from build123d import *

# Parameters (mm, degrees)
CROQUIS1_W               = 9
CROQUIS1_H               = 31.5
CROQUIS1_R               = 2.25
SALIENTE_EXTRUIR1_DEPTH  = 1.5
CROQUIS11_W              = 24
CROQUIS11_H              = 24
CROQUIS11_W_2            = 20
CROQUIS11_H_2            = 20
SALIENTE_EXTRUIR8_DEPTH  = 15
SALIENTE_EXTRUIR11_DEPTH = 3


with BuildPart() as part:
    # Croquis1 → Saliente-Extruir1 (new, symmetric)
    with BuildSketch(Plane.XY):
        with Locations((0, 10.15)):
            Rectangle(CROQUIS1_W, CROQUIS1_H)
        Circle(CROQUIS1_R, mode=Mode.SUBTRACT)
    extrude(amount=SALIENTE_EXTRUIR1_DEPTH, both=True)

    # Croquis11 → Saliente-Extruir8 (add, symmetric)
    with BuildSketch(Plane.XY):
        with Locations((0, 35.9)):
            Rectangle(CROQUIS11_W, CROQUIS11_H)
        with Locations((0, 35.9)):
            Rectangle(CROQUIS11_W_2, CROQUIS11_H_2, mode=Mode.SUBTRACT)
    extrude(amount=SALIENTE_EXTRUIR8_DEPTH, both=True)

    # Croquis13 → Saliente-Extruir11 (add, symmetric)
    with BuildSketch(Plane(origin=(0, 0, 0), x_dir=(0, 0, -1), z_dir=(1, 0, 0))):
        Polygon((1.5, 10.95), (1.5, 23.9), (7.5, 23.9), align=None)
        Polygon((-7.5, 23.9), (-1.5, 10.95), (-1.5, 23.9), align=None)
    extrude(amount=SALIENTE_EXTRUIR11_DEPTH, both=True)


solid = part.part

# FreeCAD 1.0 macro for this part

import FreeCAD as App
import Part
import Sketcher
from FreeCAD import Vector
Q = App.Units.Quantity

doc = App.newDocument("Part")
body = doc.addObject("PartDesign::Body", "Body")

sketch1 = doc.addObject("Sketcher::SketchObject", "Sketch")
body.addObject(sketch1)
sketch1.AttachmentSupport = (doc.XY_Plane, [""])
sketch1.MapMode = "FlatFace"
sketch1.addGeometry(Part.LineSegment(Vector(-4.5, 25.9, 0), Vector(-4.5, -5.6, 0)), False)
sketch1.addGeometry(Part.LineSegment(Vector(-4.5, -5.6, 0), Vector(4.5, -5.6, 0)), False)
sketch1.addGeometry(Part.LineSegment(Vector(4.5, -5.6, 0), Vector(4.5, 25.9, 0)), False)
sketch1.addGeometry(Part.LineSegment(Vector(4.5, 25.9, 0), Vector(-4.5, 25.9, 0)), False)
sketch1.addGeometry(Part.Circle(Vector(0, 0, 0), Vector(0, 0, 1), 2.25), False)
sketch1.addConstraint(Sketcher.Constraint("Coincident", 0, 2, 1, 1))
sketch1.addConstraint(Sketcher.Constraint("Coincident", 1, 2, 2, 1))
sketch1.addConstraint(Sketcher.Constraint("Coincident", 2, 2, 3, 1))
sketch1.addConstraint(Sketcher.Constraint("Coincident", 3, 2, 0, 1))
sketch1.addConstraint(Sketcher.Constraint("Vertical", 0))
sketch1.addConstraint(Sketcher.Constraint("Horizontal", 1))
sketch1.addConstraint(Sketcher.Constraint("Vertical", 2))
sketch1.addConstraint(Sketcher.Constraint("Horizontal", 3))
sketch1.addConstraint(Sketcher.Constraint("Coincident", 4, 3, -1, 1))
sketch1.addConstraint(Sketcher.Constraint("Diameter", 4, Q("4.5 mm")))
sketch1.addConstraint(Sketcher.Constraint("DistanceX", 1, 1, 1, 2, Q("9 mm")))
sketch1.addConstraint(Sketcher.Constraint("DistanceY", 0, 2, 0, 1, Q("31.5 mm")))
sketch1.addConstraint(Sketcher.Constraint("DistanceX", 0, 2, -1, 1, Q("4.5 mm")))
sketch1.addConstraint(Sketcher.Constraint("DistanceY", 0, 2, -1, 1, Q("5.6 mm")))
pad1 = doc.addObject("PartDesign::Pad", "Pad")
body.addObject(pad1)
pad1.Profile = sketch1
pad1.Length = 3
pad1.Midplane = True

sketch2 = doc.addObject("Sketcher::SketchObject", "Sketch001")
body.addObject(sketch2)
sketch2.AttachmentSupport = (doc.XY_Plane, [""])
sketch2.MapMode = "FlatFace"
sketch2.addGeometry(Part.LineSegment(Vector(-12, 47.9, 0), Vector(-12, 23.9, 0)), False)
sketch2.addGeometry(Part.LineSegment(Vector(-12, 23.9, 0), Vector(12, 23.9, 0)), False)
sketch2.addGeometry(Part.LineSegment(Vector(12, 23.9, 0), Vector(12, 47.9, 0)), False)
sketch2.addGeometry(Part.LineSegment(Vector(12, 47.9, 0), Vector(-12, 47.9, 0)), False)
sketch2.addGeometry(Part.LineSegment(Vector(10, 25.9, 0), Vector(-10, 25.9, 0)), False)
sketch2.addGeometry(Part.LineSegment(Vector(-10, 25.9, 0), Vector(-10, 45.9, 0)), False)
sketch2.addGeometry(Part.LineSegment(Vector(-10, 45.9, 0), Vector(10, 45.9, 0)), False)
sketch2.addGeometry(Part.LineSegment(Vector(10, 45.9, 0), Vector(10, 25.9, 0)), False)
sketch2.addConstraint(Sketcher.Constraint("Coincident", 0, 2, 1, 1))
sketch2.addConstraint(Sketcher.Constraint("Coincident", 1, 2, 2, 1))
sketch2.addConstraint(Sketcher.Constraint("Coincident", 2, 2, 3, 1))
sketch2.addConstraint(Sketcher.Constraint("Coincident", 3, 2, 0, 1))
sketch2.addConstraint(Sketcher.Constraint("Coincident", 4, 2, 5, 1))
sketch2.addConstraint(Sketcher.Constraint("Coincident", 5, 2, 6, 1))
sketch2.addConstraint(Sketcher.Constraint("Coincident", 6, 2, 7, 1))
sketch2.addConstraint(Sketcher.Constraint("Coincident", 7, 2, 4, 1))
sketch2.addConstraint(Sketcher.Constraint("Vertical", 0))
sketch2.addConstraint(Sketcher.Constraint("Horizontal", 1))
sketch2.addConstraint(Sketcher.Constraint("Vertical", 2))
sketch2.addConstraint(Sketcher.Constraint("Horizontal", 3))
sketch2.addConstraint(Sketcher.Constraint("Horizontal", 4))
sketch2.addConstraint(Sketcher.Constraint("Vertical", 5))
sketch2.addConstraint(Sketcher.Constraint("Horizontal", 6))
sketch2.addConstraint(Sketcher.Constraint("Vertical", 7))
sketch2.addConstraint(Sketcher.Constraint("Equal", 3, 0))
sketch2.addConstraint(Sketcher.Constraint("Equal", 6, 5))
sketch2.addConstraint(Sketcher.Constraint("DistanceX", 1, 1, 1, 2, Q("24 mm")))
sketch2.addConstraint(Sketcher.Constraint("DistanceX", 4, 2, 4, 1, Q("20 mm")))
sketch2.addConstraint(Sketcher.Constraint("DistanceX", 0, 2, -1, 1, Q("12 mm")))
sketch2.addConstraint(Sketcher.Constraint("DistanceX", 4, 2, -1, 1, Q("10 mm")))
sketch2.addConstraint(Sketcher.Constraint("DistanceY", 0, 2, 4, 2, Q("2 mm")))
sketch2.addConstraint(Sketcher.Constraint("DistanceY", -1, 1, 0, 2, Q("23.9 mm")))
pad2 = doc.addObject("PartDesign::Pad", "Pad001")
body.addObject(pad2)
pad2.Profile = sketch2
pad2.Length = 30
pad2.Midplane = True

sketch3 = doc.addObject("Sketcher::SketchObject", "Sketch002")
body.addObject(sketch3)
sketch3.AttachmentSupport = (doc.YZ_Plane, [""])
sketch3.MapMode = "FlatFace"
sketch3.addGeometry(Part.LineSegment(Vector(23.9, -1.5, 0), Vector(10.95, -1.5, 0)), False)
sketch3.addGeometry(Part.LineSegment(Vector(10.95, -1.5, 0), Vector(23.9, -7.5, 0)), False)
sketch3.addGeometry(Part.LineSegment(Vector(23.9, -7.5, 0), Vector(23.9, -1.5, 0)), False)
sketch3.addGeometry(Part.LineSegment(Vector(23.9, 7.5, 0), Vector(10.95, 1.5, 0)), False)
sketch3.addGeometry(Part.LineSegment(Vector(10.95, 1.5, 0), Vector(23.9, 1.5, 0)), False)
sketch3.addGeometry(Part.LineSegment(Vector(23.9, 1.5, 0), Vector(23.9, 7.5, 0)), False)
sketch3.addConstraint(Sketcher.Constraint("Coincident", 0, 2, 1, 1))
sketch3.addConstraint(Sketcher.Constraint("Coincident", 1, 2, 2, 1))
sketch3.addConstraint(Sketcher.Constraint("Coincident", 2, 2, 0, 1))
sketch3.addConstraint(Sketcher.Constraint("Coincident", 3, 2, 4, 1))
sketch3.addConstraint(Sketcher.Constraint("Coincident", 4, 2, 5, 1))
sketch3.addConstraint(Sketcher.Constraint("Coincident", 5, 2, 3, 1))
sketch3.addConstraint(Sketcher.Constraint("Horizontal", 0))
sketch3.addConstraint(Sketcher.Constraint("Vertical", 2))
sketch3.addConstraint(Sketcher.Constraint("Horizontal", 4))
sketch3.addConstraint(Sketcher.Constraint("Vertical", 5))
sketch3.addConstraint(Sketcher.Constraint("Symmetric", 0, 2, 3, 2, -1))
sketch3.addConstraint(Sketcher.Constraint("Symmetric", 1, 2, 5, 2, -1))
sketch3.addConstraint(Sketcher.Constraint("DistanceY", 2, 1, 2, 2, Q("6 mm")))
sketch3.addConstraint(Sketcher.Constraint("DistanceY", 0, 2, 3, 2, Q("3 mm")))
sketch3.addConstraint(Sketcher.Constraint("DistanceX", 0, 2, 0, 1, Q("12.95 mm")))
sketch3.addConstraint(Sketcher.Constraint("DistanceX", -1, 1, 1, 2, Q("23.9 mm")))
pad3 = doc.addObject("PartDesign::Pad", "Pad002")
body.addObject(pad3)
pad3.Profile = sketch3
pad3.Length = 6
pad3.Midplane = True

doc.recompute()
